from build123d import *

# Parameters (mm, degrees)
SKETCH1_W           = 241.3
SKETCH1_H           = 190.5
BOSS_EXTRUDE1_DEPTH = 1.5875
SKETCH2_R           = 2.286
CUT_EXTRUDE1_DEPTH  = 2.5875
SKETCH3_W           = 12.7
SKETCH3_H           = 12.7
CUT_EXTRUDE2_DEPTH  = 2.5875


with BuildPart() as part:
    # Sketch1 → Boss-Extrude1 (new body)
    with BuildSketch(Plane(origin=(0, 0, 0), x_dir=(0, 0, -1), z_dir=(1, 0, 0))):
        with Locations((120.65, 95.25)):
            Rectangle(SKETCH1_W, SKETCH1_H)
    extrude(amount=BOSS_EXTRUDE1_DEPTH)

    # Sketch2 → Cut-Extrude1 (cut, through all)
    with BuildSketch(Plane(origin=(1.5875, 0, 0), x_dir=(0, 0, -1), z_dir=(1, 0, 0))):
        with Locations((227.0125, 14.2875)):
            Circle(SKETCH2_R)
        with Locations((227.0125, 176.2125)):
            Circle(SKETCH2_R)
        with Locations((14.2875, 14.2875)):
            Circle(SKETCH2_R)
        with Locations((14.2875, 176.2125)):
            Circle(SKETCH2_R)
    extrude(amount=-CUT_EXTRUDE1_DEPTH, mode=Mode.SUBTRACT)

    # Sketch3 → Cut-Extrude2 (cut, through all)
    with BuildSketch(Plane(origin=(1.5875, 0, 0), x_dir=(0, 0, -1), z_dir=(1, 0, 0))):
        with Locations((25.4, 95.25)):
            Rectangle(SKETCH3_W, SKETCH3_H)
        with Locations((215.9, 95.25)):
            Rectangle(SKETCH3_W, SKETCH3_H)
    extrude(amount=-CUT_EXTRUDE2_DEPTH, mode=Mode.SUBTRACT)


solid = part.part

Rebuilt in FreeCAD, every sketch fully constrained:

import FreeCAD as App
import Part
import Sketcher
from FreeCAD import Vector
Q = App.Units.Quantity

doc = App.newDocument("Part")
params = doc.addObject("Spreadsheet::Sheet", "Params")
for row, (alias, value) in enumerate([
    ("sketch1_width", "7.5 in"),
    ("sketch1_height", "9.5 in"),
    ("pad1_length", "0.0625 in"),
    ("sketch2_diameter", "0.18 in"),
    ("sketch3_width", "0.5 in"),
], start=1):
    params.set(f"A{row}", alias)
    params.set(f"B{row}", "=" + value)
    params.setAlias(f"B{row}", alias)

body = doc.addObject("PartDesign::Body", "Body")

sketch1 = body.newObject("Sketcher::SketchObject", "Sketch")
sketch1.AttachmentSupport = (doc.getObject("YZ_Plane"), [""])
sketch1.MapMode = "FlatFace"
sketch1.addGeometry([
    Part.LineSegment(Vector(190, 0, 0), Vector(0, 0, 0)),
    Part.LineSegment(Vector(0, 0, 0), Vector(0, -241, 0)),
    Part.LineSegment(Vector(0, -241, 0), Vector(190, -241, 0)),
    Part.LineSegment(Vector(190, -241, 0), Vector(190, 0, 0)),
], False)
sketch1.addConstraint([
    Sketcher.Constraint("Coincident", 0, 2, 1, 1),
    Sketcher.Constraint("Coincident", 1, 2, 2, 1),
    Sketcher.Constraint("Coincident", 2, 2, 3, 1),
    Sketcher.Constraint("Coincident", 3, 2, 0, 1),
    Sketcher.Constraint("Horizontal", 0),
    Sketcher.Constraint("Vertical", 1),
    Sketcher.Constraint("Horizontal", 2),
    Sketcher.Constraint("Vertical", 3),
    Sketcher.Constraint("Coincident", 0, 2, -1, 1),
    Sketcher.Constraint("DistanceX", 0, 2, 0, 1, Q("7.5 in")),
    Sketcher.Constraint("DistanceY", 1, 2, 1, 1, Q("9.5 in")),
])
sketch1.setExpression("Constraints[9]", "Params.sketch1_width")
sketch1.setExpression("Constraints[10]", "Params.sketch1_height")
pad1 = body.newObject("PartDesign::Pad", "Pad")
pad1.Profile = sketch1
pad1.setExpression("Length", "Params.pad1_length")

sketch2 = body.newObject("Sketcher::SketchObject", "Sketch001")
sketch2.AttachmentSupport = (doc.getObject("YZ_Plane"), [""])
sketch2.MapMode = "FlatFace"
sketch2.AttachmentOffset = App.Placement(Vector(0, 0, 0.0625 * 25.4), App.Rotation())
sketch2.addGeometry([
    Part.Circle(Vector(14.3, -227, 0), Vector(0, 0, 1), 2.3),
    Part.Circle(Vector(176.2, -227, 0), Vector(0, 0, 1), 2.3),
    Part.Circle(Vector(14.3, -14.3, 0), Vector(0, 0, 1), 2.3),
    Part.Circle(Vector(176.2, -14.3, 0), Vector(0, 0, 1), 2.3),
], False)
sketch2.addConstraint([
    Sketcher.Constraint("Equal", 0, 1),
    Sketcher.Constraint("Equal", 1, 2),
    Sketcher.Constraint("Equal", 2, 3),
    Sketcher.Constraint("Horizontal", 0, 3, 1, 3),
    Sketcher.Constraint("Horizontal", 2, 3, 3, 3),
    Sketcher.Constraint("Vertical", 0, 3, 2, 3),
    Sketcher.Constraint("Vertical", 1, 3, 3, 3),
    Sketcher.Constraint("Diameter", 0, Q("0.18 in")),
    Sketcher.Constraint("DistanceX", -1, 1, 0, 3, Q("0.5625 in")),
    Sketcher.Constraint("DistanceY", 0, 3, -1, 1, Q("8.9375 in")),
    Sketcher.Constraint("DistanceX", -1, 1, 1, 3, Q("6.9375 in")),
    Sketcher.Constraint("DistanceY", 2, 3, -1, 1, Q("0.5625 in")),
])
sketch2.setExpression("Constraints[7]", "Params.sketch2_diameter")
pocket1 = body.newObject("PartDesign::Pocket", "Pocket")
pocket1.Profile = sketch2
pocket1.Type = "ThroughAll"

sketch3 = body.newObject("Sketcher::SketchObject", "Sketch002")
sketch3.AttachmentSupport = (doc.getObject("YZ_Plane"), [""])
sketch3.MapMode = "FlatFace"
sketch3.AttachmentOffset = App.Placement(Vector(0, 0, 0.0625 * 25.4), App.Rotation())
sketch3.addGeometry([
    Part.LineSegment(Vector(102, -19, 0), Vector(89, -19, 0)),
    Part.LineSegment(Vector(89, -19, 0), Vector(89, -32, 0)),
    Part.LineSegment(Vector(89, -32, 0), Vector(102, -32, 0)),
    Part.LineSegment(Vector(102, -32, 0), Vector(102, -19, 0)),
    Part.LineSegment(Vector(102, -210, 0), Vector(89, -210, 0)),
    Part.LineSegment(Vector(89, -210, 0), Vector(89, -222, 0)),
    Part.LineSegment(Vector(89, -222, 0), Vector(102, -222, 0)),
    Part.LineSegment(Vector(102, -222, 0), Vector(102, -210, 0)),
], False)
sketch3.addConstraint([
    Sketcher.Constraint("Coincident", 0, 2, 1, 1),
    Sketcher.Constraint("Coincident", 1, 2, 2, 1),
    Sketcher.Constraint("Coincident", 2, 2, 3, 1),
    Sketcher.Constraint("Coincident", 3, 2, 0, 1),
    Sketcher.Constraint("Coincident", 4, 2, 5, 1),
    Sketcher.Constraint("Coincident", 5, 2, 6, 1),
    Sketcher.Constraint("Coincident", 6, 2, 7, 1),
    Sketcher.Constraint("Coincident", 7, 2, 4, 1),
    Sketcher.Constraint("Horizontal", 0),
    Sketcher.Constraint("Vertical", 1),
    Sketcher.Constraint("Horizontal", 2),
    Sketcher.Constraint("Vertical", 3),
    Sketcher.Constraint("Horizontal", 4),
    Sketcher.Constraint("Vertical", 5),
    Sketcher.Constraint("Horizontal", 6),
    Sketcher.Constraint("Vertical", 7),
    Sketcher.Constraint("Vertical", 1, 2, 4, 2),
    Sketcher.Constraint("Vertical", 3, 2, 6, 2),
    Sketcher.Constraint("Equal", 6, 1),
    Sketcher.Constraint("Equal", 3, 5),
    Sketcher.Constraint("DistanceX", 0, 2, 0, 1, Q("0.5 in")),
    Sketcher.Constraint("DistanceX", -1, 1, 2, 2, Q("4 in")),
    Sketcher.Constraint("DistanceY", 4, 2, 1, 2, Q("7 in")),
    Sketcher.Constraint("DistanceY", 0, 2, -1, 1, Q("0.75 in")),
])
sketch3.setExpression("Constraints[20]", "Params.sketch3_width")
pocket2 = body.newObject("PartDesign::Pocket", "Pocket001")
pocket2.Profile = sketch3
pocket2.Type = "ThroughAll"

doc.recompute()
